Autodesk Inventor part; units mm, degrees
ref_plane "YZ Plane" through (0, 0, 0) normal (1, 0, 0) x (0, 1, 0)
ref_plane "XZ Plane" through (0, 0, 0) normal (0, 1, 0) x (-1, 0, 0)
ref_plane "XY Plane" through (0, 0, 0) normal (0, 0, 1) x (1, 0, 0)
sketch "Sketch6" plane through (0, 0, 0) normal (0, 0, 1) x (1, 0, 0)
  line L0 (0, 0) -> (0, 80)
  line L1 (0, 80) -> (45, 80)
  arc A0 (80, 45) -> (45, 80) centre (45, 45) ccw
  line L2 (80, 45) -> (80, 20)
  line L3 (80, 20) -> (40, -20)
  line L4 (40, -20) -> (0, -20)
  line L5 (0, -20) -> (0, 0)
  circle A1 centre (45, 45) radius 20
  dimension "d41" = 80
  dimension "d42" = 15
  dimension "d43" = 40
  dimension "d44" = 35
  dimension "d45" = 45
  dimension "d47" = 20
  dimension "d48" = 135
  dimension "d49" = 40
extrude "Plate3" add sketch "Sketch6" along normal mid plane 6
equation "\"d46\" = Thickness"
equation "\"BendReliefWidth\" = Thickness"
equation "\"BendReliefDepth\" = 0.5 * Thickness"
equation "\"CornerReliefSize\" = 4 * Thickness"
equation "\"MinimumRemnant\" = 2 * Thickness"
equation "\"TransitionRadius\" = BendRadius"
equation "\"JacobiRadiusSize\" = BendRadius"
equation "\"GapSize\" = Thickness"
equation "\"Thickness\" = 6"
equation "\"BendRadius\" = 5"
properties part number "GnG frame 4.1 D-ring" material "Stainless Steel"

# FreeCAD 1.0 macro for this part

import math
import FreeCAD as App
import Part
import Sketcher
from FreeCAD import Vector
Q = App.Units.Quantity

doc = App.newDocument("Part")
params = doc.addObject("Spreadsheet::Sheet", "Params")
for row, (alias, value) in enumerate([
    ("sketch1_diameter", "40 mm"),
    ("sketch1_radius", "35 mm"),
    ("sketch1_width", "40 mm"),
    ("sketch1_width2", "45 mm"),
    ("pad1_length", "6 mm"),
], start=1):
    params.set(f"A{row}", alias)
    params.set(f"B{row}", "=" + value)
    params.setAlias(f"B{row}", alias)

body = doc.addObject("PartDesign::Body", "Body")

# Sketch on XY plane
sketch1 = body.newObject("Sketcher::SketchObject", "Sketch")
sketch1.AttachmentSupport = (doc.getObject("XY_Plane"), [""])
sketch1.MapMode = "FlatFace"
sketch1.addGeometry([
    Part.LineSegment(Vector(0, 80, 0), Vector(0, -20, 0)),  # 0
    Part.LineSegment(Vector(0, -20, 0), Vector(40, -20, 0)),  # 1
    Part.LineSegment(Vector(40, -20, 0), Vector(80, 20, 0)),  # 2
    Part.LineSegment(Vector(80, 20, 0), Vector(80, 45, 0)),  # 3
    Part.ArcOfCircle(Part.Circle(Vector(45, 45, 0), Vector(0, 0, 1), 35), math.radians(0), math.radians(90)),  # 4
    Part.LineSegment(Vector(45, 80, 0), Vector(0, 80, 0)),  # 5
    Part.Circle(Vector(45, 45, 0), Vector(0, 0, 1), 20),  # 6
], False)
sketch1.addConstraint([
    Sketcher.Constraint("Coincident", 0, 2, 1, 1),
    Sketcher.Constraint("Coincident", 1, 2, 2, 1),
    Sketcher.Constraint("Coincident", 2, 2, 3, 1),
    Sketcher.Constraint("Tangent", 3, 2, 4, 1),
    Sketcher.Constraint("Tangent", 4, 2, 5, 1),
    Sketcher.Constraint("Coincident", 5, 2, 0, 1),
    Sketcher.Constraint("Vertical", 0),
    Sketcher.Constraint("Horizontal", 1),
    Sketcher.Constraint("Vertical", 3),
    Sketcher.Constraint("Horizontal", 5),
    Sketcher.Constraint("Coincident", 6, 3, 4, 3),
    Sketcher.Constraint("PointOnObject", 0, 2, -2),
    Sketcher.Constraint("Diameter", 6, 40.0),
    Sketcher.Constraint("Radius", 4, 35.0),
    Sketcher.Constraint("DistanceX", 1, 1, 1, 2, 40.0),
    Sketcher.Constraint("DistanceX", 5, 2, 5, 1, 45.0),
    Sketcher.Constraint("Angle", 2, Q("45 deg")),
    Sketcher.Constraint("DistanceY", -1, 1, 4, 3, 45.0),
    Sketcher.Constraint("DistanceY", 0, 2, -1, 1, 20.0),
])
sketch1.setExpression("Constraints[12]", "Params.sketch1_diameter")
sketch1.setExpression("Constraints[13]", "Params.sketch1_radius")
sketch1.setExpression("Constraints[14]", "Params.sketch1_width")
sketch1.setExpression("Constraints[15]", "Params.sketch1_width2")
pad1 = body.newObject("PartDesign::Pad", "Pad")
pad1.Profile = sketch1
pad1.setExpression("Length", "Params.pad1_length")
pad1.Midplane = True

doc.recompute()
